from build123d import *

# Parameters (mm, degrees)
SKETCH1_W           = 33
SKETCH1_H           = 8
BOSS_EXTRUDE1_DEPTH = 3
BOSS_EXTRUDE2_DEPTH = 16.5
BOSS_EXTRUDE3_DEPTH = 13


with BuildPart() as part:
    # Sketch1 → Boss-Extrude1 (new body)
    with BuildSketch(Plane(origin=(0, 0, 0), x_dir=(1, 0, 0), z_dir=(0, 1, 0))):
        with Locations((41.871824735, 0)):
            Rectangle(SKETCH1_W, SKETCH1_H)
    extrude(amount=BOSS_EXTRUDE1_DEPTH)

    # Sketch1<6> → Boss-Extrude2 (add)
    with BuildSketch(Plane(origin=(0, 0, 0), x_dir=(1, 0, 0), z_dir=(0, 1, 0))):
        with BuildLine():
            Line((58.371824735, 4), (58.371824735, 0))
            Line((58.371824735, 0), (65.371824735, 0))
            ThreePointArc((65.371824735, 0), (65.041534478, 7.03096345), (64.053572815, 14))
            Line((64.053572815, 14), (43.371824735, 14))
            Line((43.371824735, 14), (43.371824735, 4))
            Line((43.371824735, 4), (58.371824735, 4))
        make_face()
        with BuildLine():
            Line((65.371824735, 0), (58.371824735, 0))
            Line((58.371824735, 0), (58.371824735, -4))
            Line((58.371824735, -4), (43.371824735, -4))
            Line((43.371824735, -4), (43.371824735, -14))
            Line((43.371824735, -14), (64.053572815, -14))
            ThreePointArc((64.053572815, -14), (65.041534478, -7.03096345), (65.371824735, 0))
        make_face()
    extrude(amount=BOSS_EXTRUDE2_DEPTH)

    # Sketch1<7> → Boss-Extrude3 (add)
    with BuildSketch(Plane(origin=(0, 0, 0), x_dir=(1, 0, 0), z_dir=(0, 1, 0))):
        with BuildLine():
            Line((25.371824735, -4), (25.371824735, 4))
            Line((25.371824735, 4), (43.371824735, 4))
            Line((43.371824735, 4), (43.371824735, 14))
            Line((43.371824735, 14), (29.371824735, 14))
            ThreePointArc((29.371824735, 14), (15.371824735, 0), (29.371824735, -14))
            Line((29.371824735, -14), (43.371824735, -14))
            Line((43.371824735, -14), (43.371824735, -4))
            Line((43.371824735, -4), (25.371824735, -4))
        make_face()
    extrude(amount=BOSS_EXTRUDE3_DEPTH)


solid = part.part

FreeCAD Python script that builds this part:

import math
import FreeCAD as App
import Part
import Sketcher

V = App.Vector
Q = App.Units.Quantity

doc = App.newDocument("Part")
body = doc.addObject("PartDesign::Body", "Body")

sketch1 = body.newObject("Sketcher::SketchObject", "Sketch")
sketch1.AttachmentSupport = (doc.getObject("XZ_Plane"), [""])
sketch1.MapMode = "FlatFace"
sketch1.addGeometry([
    Part.LineSegment(V(25, -4, 0), V(25, 4, 0)),
    Part.LineSegment(V(25, 4, 0), V(58, 4, 0)),
    Part.LineSegment(V(58, 4, 0), V(58, -4, 0)),
    Part.LineSegment(V(58, -4, 0), V(25, -4, 0)),
], False)
sketch1.addConstraint([
    Sketcher.Constraint("Coincident", 0, 2, 1, 1),
    Sketcher.Constraint("Coincident", 1, 2, 2, 1),
    Sketcher.Constraint("Coincident", 2, 2, 3, 1),
    Sketcher.Constraint("Coincident", 3, 2, 0, 1),
    Sketcher.Constraint("Vertical", 0),
    Sketcher.Constraint("Horizontal", 1),
    Sketcher.Constraint("Vertical", 2),
    Sketcher.Constraint("Horizontal", 3),
    Sketcher.Constraint("DistanceX", 1, 1, 1, 2, Q("33 mm")),
    Sketcher.Constraint("DistanceY", 0, 1, 0, 2, Q("8 mm")),
    Sketcher.Constraint("DistanceY", -1, 1, 0, 2, Q("4 mm")),
    Sketcher.Constraint("DistanceX", -1, 1, 0, 2, Q("25.371825 mm")),
])
pad1 = body.newObject("PartDesign::Pad", "Pad")
pad1.Profile = sketch1
pad1.Length = 3
pad1.Reversed = True

sketch2 = body.newObject("Sketcher::SketchObject", "Sketch001")
sketch2.AttachmentSupport = (doc.getObject("XZ_Plane"), [""])
sketch2.MapMode = "FlatFace"
sketch2.addGeometry([
    Part.LineSegment(V(58, -4, 0), V(58, 4, 0)),
    Part.LineSegment(V(58, 4, 0), V(43, 4, 0)),
    Part.LineSegment(V(43, 4, 0), V(43, 14, 0)),
    Part.LineSegment(V(43, 14, 0), V(64, 14, 0)),
    Part.ArcOfCircle(Part.Circle(V(-10, 0, 0), V(0, 0, 1), 75), math.radians(0), math.radians(10.76)),
    Part.ArcOfCircle(Part.Circle(V(-10, 0, 0), V(0, 0, 1), 75), math.radians(-10.76), math.radians(0)),
    Part.LineSegment(V(64, -14, 0), V(43, -14, 0)),
    Part.LineSegment(V(43, -14, 0), V(43, -4, 0)),
    Part.LineSegment(V(43, -4, 0), V(58, -4, 0)),
], False)
sketch2.addConstraint([
    Sketcher.Constraint("Coincident", 0, 2, 1, 1),
    Sketcher.Constraint("Coincident", 1, 2, 2, 1),
    Sketcher.Constraint("Coincident", 2, 2, 3, 1),
    Sketcher.Constraint("Coincident", 3, 2, 4, 2),
    Sketcher.Constraint("Tangent", 4, 1, 5, 2),
    Sketcher.Constraint("Coincident", 5, 1, 6, 1),
    Sketcher.Constraint("Coincident", 6, 2, 7, 1),
    Sketcher.Constraint("Coincident", 7, 2, 8, 1),
    Sketcher.Constraint("Coincident", 8, 2, 0, 1),
    Sketcher.Constraint("Vertical", 0),
    Sketcher.Constraint("Horizontal", 1),
    Sketcher.Constraint("Vertical", 2),
    Sketcher.Constraint("Horizontal", 3),
    Sketcher.Constraint("Horizontal", 6),
    Sketcher.Constraint("Vertical", 7),
    Sketcher.Constraint("Horizontal", 8),
    Sketcher.Constraint("Equal", 4, 5),
    Sketcher.Constraint("Symmetric", 3, 2, 5, 1, -1),
    Sketcher.Constraint("Symmetric", 1, 2, 7, 2, -1),
    Sketcher.Constraint("PointOnObject", 4, 1, -1),
    Sketcher.Constraint("Radius", 4, Q("75 mm")),
    Sketcher.Constraint("DistanceX", 1, 2, 1, 1, Q("15 mm")),
    Sketcher.Constraint("DistanceY", 0, 1, 0, 2, Q("8 mm")),
    Sketcher.Constraint("DistanceY", 2, 1, 2, 2, Q("10 mm")),
    Sketcher.Constraint("DistanceX", 4, 3, 0, 2, Q("68 mm")),
    Sketcher.Constraint("DistanceX", 4, 3, -1, 1, Q("9.628175 mm")),
])
pad2 = body.newObject("PartDesign::Pad", "Pad001")
pad2.Profile = sketch2
pad2.Length = 16.5
pad2.Reversed = True

sketch3 = body.newObject("Sketcher::SketchObject", "Sketch002")
sketch3.AttachmentSupport = (doc.getObject("XZ_Plane"), [""])
sketch3.MapMode = "FlatFace"
sketch3.addGeometry([
    Part.LineSegment(V(25, 4, 0), V(25, -4, 0)),
    Part.LineSegment(V(25, -4, 0), V(43, -4, 0)),
    Part.LineSegment(V(43, -4, 0), V(43, -14, 0)),
    Part.LineSegment(V(43, -14, 0), V(29, -14, 0)),
    Part.ArcOfCircle(Part.Circle(V(29, 0, 0), V(0, 0, 1), 14), math.radians(90), math.radians(270)),
    Part.LineSegment(V(29, 14, 0), V(43, 14, 0)),
    Part.LineSegment(V(43, 14, 0), V(43, 4, 0)),
    Part.LineSegment(V(43, 4, 0), V(25, 4, 0)),
], False)
sketch3.addConstraint([
    Sketcher.Constraint("Coincident", 0, 2, 1, 1),
    Sketcher.Constraint("Coincident", 1, 2, 2, 1),
    Sketcher.Constraint("Coincident", 2, 2, 3, 1),
    Sketcher.Constraint("Tangent", 3, 2, 4, 2),
    Sketcher.Constraint("Tangent", 4, 1, 5, 1),
    Sketcher.Constraint("Coincident", 5, 2, 6, 1),
    Sketcher.Constraint("Coincident", 6, 2, 7, 1),
    Sketcher.Constraint("Coincident", 7, 2, 0, 1),
    Sketcher.Constraint("Vertical", 0),
    Sketcher.Constraint("Horizontal", 1),
    Sketcher.Constraint("Vertical", 2),
    Sketcher.Constraint("Horizontal", 3),
    Sketcher.Constraint("Horizontal", 5),
    Sketcher.Constraint("Vertical", 6),
    Sketcher.Constraint("Horizontal", 7),
    Sketcher.Constraint("Symmetric", 2, 2, 5, 2, -1),
    Sketcher.Constraint("Equal", 2, 6),
    Sketcher.Constraint("Radius", 4, Q("14 mm")),
    Sketcher.Constraint("DistanceX", 1, 1, 1, 2, Q("18 mm")),
    Sketcher.Constraint("DistanceX", 3, 2, 3, 1, Q("14 mm")),
    Sketcher.Constraint("DistanceY", 0, 2, 0, 1, Q("8 mm")),
    Sketcher.Constraint("DistanceX", -1, 1, 4, 3, Q("29.371825 mm")),
])
pad3 = body.newObject("PartDesign::Pad", "Pad002")
pad3.Profile = sketch3
pad3.Length = 13
pad3.Reversed = True

doc.recompute()
